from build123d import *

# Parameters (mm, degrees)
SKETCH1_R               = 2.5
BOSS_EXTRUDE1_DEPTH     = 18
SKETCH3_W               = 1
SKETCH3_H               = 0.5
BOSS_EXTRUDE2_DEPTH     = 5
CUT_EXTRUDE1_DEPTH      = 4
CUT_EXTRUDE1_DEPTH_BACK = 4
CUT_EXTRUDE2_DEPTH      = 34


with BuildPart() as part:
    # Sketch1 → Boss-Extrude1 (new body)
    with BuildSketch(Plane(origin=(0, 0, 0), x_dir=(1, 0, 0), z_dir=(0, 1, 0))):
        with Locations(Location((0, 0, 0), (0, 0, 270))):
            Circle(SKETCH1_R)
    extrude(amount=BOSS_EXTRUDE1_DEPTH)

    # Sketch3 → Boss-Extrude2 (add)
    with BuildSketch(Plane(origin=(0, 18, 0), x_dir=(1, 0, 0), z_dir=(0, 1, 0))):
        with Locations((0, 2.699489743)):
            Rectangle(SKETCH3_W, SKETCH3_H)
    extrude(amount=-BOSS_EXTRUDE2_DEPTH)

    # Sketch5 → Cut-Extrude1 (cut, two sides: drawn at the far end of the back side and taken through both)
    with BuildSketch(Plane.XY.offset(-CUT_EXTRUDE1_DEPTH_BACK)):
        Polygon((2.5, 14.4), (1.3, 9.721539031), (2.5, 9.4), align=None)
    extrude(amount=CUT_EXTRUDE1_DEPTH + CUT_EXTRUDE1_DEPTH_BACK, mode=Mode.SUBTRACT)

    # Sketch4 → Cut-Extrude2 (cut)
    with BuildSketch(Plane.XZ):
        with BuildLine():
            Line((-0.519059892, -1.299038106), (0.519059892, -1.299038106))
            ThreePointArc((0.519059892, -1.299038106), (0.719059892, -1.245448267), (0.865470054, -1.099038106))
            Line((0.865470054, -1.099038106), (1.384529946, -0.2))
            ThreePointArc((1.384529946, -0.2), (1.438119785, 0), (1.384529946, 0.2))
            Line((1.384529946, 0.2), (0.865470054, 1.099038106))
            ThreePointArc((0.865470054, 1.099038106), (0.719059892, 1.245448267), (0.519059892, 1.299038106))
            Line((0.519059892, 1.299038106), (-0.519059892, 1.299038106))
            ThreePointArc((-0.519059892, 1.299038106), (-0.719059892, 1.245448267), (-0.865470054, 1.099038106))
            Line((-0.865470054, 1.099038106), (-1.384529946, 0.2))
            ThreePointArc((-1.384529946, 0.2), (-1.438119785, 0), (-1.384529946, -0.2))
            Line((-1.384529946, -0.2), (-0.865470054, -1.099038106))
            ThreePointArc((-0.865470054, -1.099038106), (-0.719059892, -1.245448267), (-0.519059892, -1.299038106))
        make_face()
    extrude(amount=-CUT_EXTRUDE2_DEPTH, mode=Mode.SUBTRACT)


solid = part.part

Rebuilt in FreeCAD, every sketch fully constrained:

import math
import FreeCAD as App
import Part
import Sketcher
from FreeCAD import Vector
Q = App.Units.Quantity

doc = App.newDocument("Part")
params = doc.addObject("Spreadsheet::Sheet", "Params")
for row, (alias, value) in enumerate([
    ("sketch1_diameter", "5 mm"),
    ("pad1_length", "18 mm"),
    ("sketch2_width", "1 mm"),
    ("sketch2_height", "0.5 mm"),
    ("pad2_length", "5 mm"),
    ("sketch3_height", "5 mm"),
    ("sketch4_radius", "0.4 mm"),
    ("pocket2_length", "34 mm"),
], start=1):
    params.set(f"A{row}", alias)
    params.set(f"B{row}", "=" + value)
    params.setAlias(f"B{row}", alias)

body = doc.addObject("PartDesign::Body", "Body")

# Sketch on XZ plane
sketch1 = body.newObject("Sketcher::SketchObject", "Sketch")
sketch1.AttachmentSupport = (doc.getObject("XZ_Plane"), [""])
sketch1.MapMode = "FlatFace"
sketch1.addGeometry(Part.Circle(Vector(0, 0, 0), Vector(0, 0, 1), 2.5), False)
sketch1.addConstraint(Sketcher.Constraint("Coincident", 0, 3, -1, 1))
sketch1.addConstraint(Sketcher.Constraint("Diameter", 0, Q("5 mm")))
sketch1.setExpression("Constraints[1]", "Params.sketch1_diameter")
pad1 = body.newObject("PartDesign::Pad", "Pad")
pad1.Profile = sketch1
pad1.setExpression("Length", "Params.pad1_length")
pad1.Reversed = True

# Sketch on XZ plane
sketch2 = body.newObject("Sketcher::SketchObject", "Sketch001")
sketch2.AttachmentSupport = (doc.getObject("XZ_Plane"), [""])
sketch2.MapMode = "FlatFace"
sketch2.AttachmentOffset = App.Placement(Vector(0, 0, -18), App.Rotation())
sketch2.addGeometry(Part.LineSegment(Vector(-0.5, -2.94949, 0), Vector(-0.5, -2.44949, 0)), False)
sketch2.addGeometry(Part.LineSegment(Vector(-0.5, -2.44949, 0), Vector(0.5, -2.44949, 0)), False)
sketch2.addGeometry(Part.LineSegment(Vector(0.5, -2.44949, 0), Vector(0.5, -2.94949, 0)), False)
sketch2.addGeometry(Part.LineSegment(Vector(0.5, -2.94949, 0), Vector(-0.5, -2.94949, 0)), False)
sketch2.addConstraint(Sketcher.Constraint("Coincident", 0, 2, 1, 1))
sketch2.addConstraint(Sketcher.Constraint("Coincident", 1, 2, 2, 1))
sketch2.addConstraint(Sketcher.Constraint("Coincident", 2, 2, 3, 1))
sketch2.addConstraint(Sketcher.Constraint("Coincident", 3, 2, 0, 1))
sketch2.addConstraint(Sketcher.Constraint("Vertical", 0))
sketch2.addConstraint(Sketcher.Constraint("Horizontal", 1))
sketch2.addConstraint(Sketcher.Constraint("Vertical", 2))
sketch2.addConstraint(Sketcher.Constraint("Horizontal", 3))
sketch2.addConstraint(Sketcher.Constraint("DistanceX", 1, 1, 1, 2, Q("1 mm")))
sketch2.addConstraint(Sketcher.Constraint("DistanceY", 0, 1, 0, 2, Q("0.5 mm")))
sketch2.addConstraint(Sketcher.Constraint("DistanceX", 0, 2, -1, 1, Q("0.5 mm")))
sketch2.addConstraint(Sketcher.Constraint("DistanceY", 0, 2, -1, 1, Q("2.44949 mm")))
sketch2.setExpression("Constraints[8]", "Params.sketch2_width")
sketch2.setExpression("Constraints[9]", "Params.sketch2_height")
pad2 = body.newObject("PartDesign::Pad", "Pad001")
pad2.Profile = sketch2
pad2.setExpression("Length", "Params.pad2_length")

# Sketch on XY plane
sketch3 = body.newObject("Sketcher::SketchObject", "Sketch002")
sketch3.AttachmentSupport = (doc.getObject("XY_Plane"), [""])
sketch3.MapMode = "FlatFace"
sketch3.addGeometry(Part.LineSegment(Vector(2.5, 14.4, 0), Vector(1.3, 9.721539, 0)), False)
sketch3.addGeometry(Part.LineSegment(Vector(1.3, 9.721539, 0), Vector(2.5, 9.4, 0)), False)
sketch3.addGeometry(Part.LineSegment(Vector(2.5, 9.4, 0), Vector(2.5, 14.4, 0)), False)
sketch3.addConstraint(Sketcher.Constraint("Coincident", 0, 2, 1, 1))
sketch3.addConstraint(Sketcher.Constraint("Coincident", 1, 2, 2, 1))
sketch3.addConstraint(Sketcher.Constraint("Coincident", 2, 2, 0, 1))
sketch3.addConstraint(Sketcher.Constraint("Vertical", 2))
sketch3.addConstraint(Sketcher.Constraint("DistanceY", 2, 1, 2, 2, Q("5 mm")))
sketch3.addConstraint(Sketcher.Constraint("Angle", 1, Q("-15 deg")))
sketch3.addConstraint(Sketcher.Constraint("DistanceX", -1, 1, 0, 2, Q("1.3 mm")))
sketch3.addConstraint(Sketcher.Constraint("DistanceX", -1, 1, 1, 2, Q("2.5 mm")))
sketch3.addConstraint(Sketcher.Constraint("DistanceY", -1, 1, 1, 2, Q("9.4 mm")))
sketch3.setExpression("Constraints[4]", "Params.sketch3_height")
pocket1 = body.newObject("PartDesign::Pocket", "Pocket")
pocket1.Profile = sketch3
pocket1.Type = "ThroughAll"
pocket1.Midplane = True

# Sketch on XZ plane
sketch4 = body.newObject("Sketcher::SketchObject", "Sketch003")
sketch4.AttachmentSupport = (doc.getObject("XZ_Plane"), [""])
sketch4.MapMode = "FlatFace"
sketch4.addGeometry(Part.LineSegment(Vector(-0.51906, -1.299038, 0), Vector(0.51906, -1.299038, 0)), False)
sketch4.addGeometry(Part.ArcOfCircle(Part.Circle(Vector(0.51906, -0.899038, 0), Vector(0, 0, 1), 0.4), math.radians(-90), math.radians(-30)), False)
sketch4.addGeometry(Part.LineSegment(Vector(0.86547, -1.099038, 0), Vector(1.38453, -0.2, 0)), False)
sketch4.addGeometry(Part.ArcOfCircle(Part.Circle(Vector(1.03812, 0, 0), Vector(0, 0, 1), 0.4), math.radians(-30), math.radians(30)), False)
sketch4.addGeometry(Part.LineSegment(Vector(1.38453, 0.2, 0), Vector(0.86547, 1.099038, 0)), False)
sketch4.addGeometry(Part.ArcOfCircle(Part.Circle(Vector(0.51906, 0.899038, 0), Vector(0, 0, 1), 0.4), math.radians(30), math.radians(90)), False)
sketch4.addGeometry(Part.LineSegment(Vector(0.51906, 1.299038, 0), Vector(-0.51906, 1.299038, 0)), False)
sketch4.addGeometry(Part.ArcOfCircle(Part.Circle(Vector(-0.51906, 0.899038, 0), Vector(0, 0, 1), 0.4), math.radians(90), math.radians(150)), False)
sketch4.addGeometry(Part.LineSegment(Vector(-0.86547, 1.099038, 0), Vector(-1.38453, 0.2, 0)), False)
sketch4.addGeometry(Part.ArcOfCircle(Part.Circle(Vector(-1.03812, 0, 0), Vector(0, 0, 1), 0.4), math.radians(150), math.radians(210)), False)
sketch4.addGeometry(Part.LineSegment(Vector(-1.38453, -0.2, 0), Vector(-0.86547, -1.099038, 0)), False)
sketch4.addGeometry(Part.ArcOfCircle(Part.Circle(Vector(-0.51906, -0.899038, 0), Vector(0, 0, 1), 0.4), math.radians(-150), math.radians(-90)), False)
sketch4.addConstraint(Sketcher.Constraint("Tangent", 0, 2, 1, 1))
sketch4.addConstraint(Sketcher.Constraint("Tangent", 1, 2, 2, 1))
sketch4.addConstraint(Sketcher.Constraint("Tangent", 2, 2, 3, 1))
sketch4.addConstraint(Sketcher.Constraint("Tangent", 3, 2, 4, 1))
sketch4.addConstraint(Sketcher.Constraint("Tangent", 4, 2, 5, 1))
sketch4.addConstraint(Sketcher.Constraint("Tangent", 5, 2, 6, 1))
sketch4.addConstraint(Sketcher.Constraint("Tangent", 6, 2, 7, 1))
sketch4.addConstraint(Sketcher.Constraint("Tangent", 7, 2, 8, 1))
sketch4.addConstraint(Sketcher.Constraint("Tangent", 8, 2, 9, 1))
sketch4.addConstraint(Sketcher.Constraint("Tangent", 9, 2, 10, 1))
sketch4.addConstraint(Sketcher.Constraint("Tangent", 10, 2, 11, 1))
sketch4.addConstraint(Sketcher.Constraint("Tangent", 11, 2, 0, 1))
sketch4.addConstraint(Sketcher.Constraint("Horizontal", 0))
sketch4.addConstraint(Sketcher.Constraint("Horizontal", 6))
sketch4.addConstraint(Sketcher.Constraint("Equal", 1, 3))
sketch4.addConstraint(Sketcher.Constraint("Equal", 3, 5))
sketch4.addConstraint(Sketcher.Constraint("Equal", 5, 7))
sketch4.addConstraint(Sketcher.Constraint("Equal", 7, 9))
sketch4.addConstraint(Sketcher.Constraint("Equal", 9, 11))
sketch4.addConstraint(Sketcher.Constraint("Symmetric", 1, 3, 7, 3, -1, 1))
sketch4.addConstraint(Sketcher.Constraint("Symmetric", 3, 3, 9, 3, -1, 1))
sketch4.addConstraint(Sketcher.Constraint("Symmetric", 4, 2, 7, 2, -2))
sketch4.addConstraint(Sketcher.Constraint("Parallel", 4, 10))
sketch4.addConstraint(Sketcher.Constraint("Radius", 1, Q("0.4 mm")))
sketch4.addConstraint(Sketcher.Constraint("Angle", 2, Q("60 deg")))
sketch4.addConstraint(Sketcher.Constraint("DistanceX", 0, 1, 0, 2, Q("1.03812 mm")))
sketch4.addConstraint(Sketcher.Constraint("Distance", 2, Q("1.03812 mm")))
sketch4.setExpression("Constraints[23]", "Params.sketch4_radius")
pocket2 = body.newObject("PartDesign::Pocket", "Pocket001")
pocket2.Profile = sketch4
pocket2.setExpression("Length", "Params.pocket2_length")

doc.recompute()
